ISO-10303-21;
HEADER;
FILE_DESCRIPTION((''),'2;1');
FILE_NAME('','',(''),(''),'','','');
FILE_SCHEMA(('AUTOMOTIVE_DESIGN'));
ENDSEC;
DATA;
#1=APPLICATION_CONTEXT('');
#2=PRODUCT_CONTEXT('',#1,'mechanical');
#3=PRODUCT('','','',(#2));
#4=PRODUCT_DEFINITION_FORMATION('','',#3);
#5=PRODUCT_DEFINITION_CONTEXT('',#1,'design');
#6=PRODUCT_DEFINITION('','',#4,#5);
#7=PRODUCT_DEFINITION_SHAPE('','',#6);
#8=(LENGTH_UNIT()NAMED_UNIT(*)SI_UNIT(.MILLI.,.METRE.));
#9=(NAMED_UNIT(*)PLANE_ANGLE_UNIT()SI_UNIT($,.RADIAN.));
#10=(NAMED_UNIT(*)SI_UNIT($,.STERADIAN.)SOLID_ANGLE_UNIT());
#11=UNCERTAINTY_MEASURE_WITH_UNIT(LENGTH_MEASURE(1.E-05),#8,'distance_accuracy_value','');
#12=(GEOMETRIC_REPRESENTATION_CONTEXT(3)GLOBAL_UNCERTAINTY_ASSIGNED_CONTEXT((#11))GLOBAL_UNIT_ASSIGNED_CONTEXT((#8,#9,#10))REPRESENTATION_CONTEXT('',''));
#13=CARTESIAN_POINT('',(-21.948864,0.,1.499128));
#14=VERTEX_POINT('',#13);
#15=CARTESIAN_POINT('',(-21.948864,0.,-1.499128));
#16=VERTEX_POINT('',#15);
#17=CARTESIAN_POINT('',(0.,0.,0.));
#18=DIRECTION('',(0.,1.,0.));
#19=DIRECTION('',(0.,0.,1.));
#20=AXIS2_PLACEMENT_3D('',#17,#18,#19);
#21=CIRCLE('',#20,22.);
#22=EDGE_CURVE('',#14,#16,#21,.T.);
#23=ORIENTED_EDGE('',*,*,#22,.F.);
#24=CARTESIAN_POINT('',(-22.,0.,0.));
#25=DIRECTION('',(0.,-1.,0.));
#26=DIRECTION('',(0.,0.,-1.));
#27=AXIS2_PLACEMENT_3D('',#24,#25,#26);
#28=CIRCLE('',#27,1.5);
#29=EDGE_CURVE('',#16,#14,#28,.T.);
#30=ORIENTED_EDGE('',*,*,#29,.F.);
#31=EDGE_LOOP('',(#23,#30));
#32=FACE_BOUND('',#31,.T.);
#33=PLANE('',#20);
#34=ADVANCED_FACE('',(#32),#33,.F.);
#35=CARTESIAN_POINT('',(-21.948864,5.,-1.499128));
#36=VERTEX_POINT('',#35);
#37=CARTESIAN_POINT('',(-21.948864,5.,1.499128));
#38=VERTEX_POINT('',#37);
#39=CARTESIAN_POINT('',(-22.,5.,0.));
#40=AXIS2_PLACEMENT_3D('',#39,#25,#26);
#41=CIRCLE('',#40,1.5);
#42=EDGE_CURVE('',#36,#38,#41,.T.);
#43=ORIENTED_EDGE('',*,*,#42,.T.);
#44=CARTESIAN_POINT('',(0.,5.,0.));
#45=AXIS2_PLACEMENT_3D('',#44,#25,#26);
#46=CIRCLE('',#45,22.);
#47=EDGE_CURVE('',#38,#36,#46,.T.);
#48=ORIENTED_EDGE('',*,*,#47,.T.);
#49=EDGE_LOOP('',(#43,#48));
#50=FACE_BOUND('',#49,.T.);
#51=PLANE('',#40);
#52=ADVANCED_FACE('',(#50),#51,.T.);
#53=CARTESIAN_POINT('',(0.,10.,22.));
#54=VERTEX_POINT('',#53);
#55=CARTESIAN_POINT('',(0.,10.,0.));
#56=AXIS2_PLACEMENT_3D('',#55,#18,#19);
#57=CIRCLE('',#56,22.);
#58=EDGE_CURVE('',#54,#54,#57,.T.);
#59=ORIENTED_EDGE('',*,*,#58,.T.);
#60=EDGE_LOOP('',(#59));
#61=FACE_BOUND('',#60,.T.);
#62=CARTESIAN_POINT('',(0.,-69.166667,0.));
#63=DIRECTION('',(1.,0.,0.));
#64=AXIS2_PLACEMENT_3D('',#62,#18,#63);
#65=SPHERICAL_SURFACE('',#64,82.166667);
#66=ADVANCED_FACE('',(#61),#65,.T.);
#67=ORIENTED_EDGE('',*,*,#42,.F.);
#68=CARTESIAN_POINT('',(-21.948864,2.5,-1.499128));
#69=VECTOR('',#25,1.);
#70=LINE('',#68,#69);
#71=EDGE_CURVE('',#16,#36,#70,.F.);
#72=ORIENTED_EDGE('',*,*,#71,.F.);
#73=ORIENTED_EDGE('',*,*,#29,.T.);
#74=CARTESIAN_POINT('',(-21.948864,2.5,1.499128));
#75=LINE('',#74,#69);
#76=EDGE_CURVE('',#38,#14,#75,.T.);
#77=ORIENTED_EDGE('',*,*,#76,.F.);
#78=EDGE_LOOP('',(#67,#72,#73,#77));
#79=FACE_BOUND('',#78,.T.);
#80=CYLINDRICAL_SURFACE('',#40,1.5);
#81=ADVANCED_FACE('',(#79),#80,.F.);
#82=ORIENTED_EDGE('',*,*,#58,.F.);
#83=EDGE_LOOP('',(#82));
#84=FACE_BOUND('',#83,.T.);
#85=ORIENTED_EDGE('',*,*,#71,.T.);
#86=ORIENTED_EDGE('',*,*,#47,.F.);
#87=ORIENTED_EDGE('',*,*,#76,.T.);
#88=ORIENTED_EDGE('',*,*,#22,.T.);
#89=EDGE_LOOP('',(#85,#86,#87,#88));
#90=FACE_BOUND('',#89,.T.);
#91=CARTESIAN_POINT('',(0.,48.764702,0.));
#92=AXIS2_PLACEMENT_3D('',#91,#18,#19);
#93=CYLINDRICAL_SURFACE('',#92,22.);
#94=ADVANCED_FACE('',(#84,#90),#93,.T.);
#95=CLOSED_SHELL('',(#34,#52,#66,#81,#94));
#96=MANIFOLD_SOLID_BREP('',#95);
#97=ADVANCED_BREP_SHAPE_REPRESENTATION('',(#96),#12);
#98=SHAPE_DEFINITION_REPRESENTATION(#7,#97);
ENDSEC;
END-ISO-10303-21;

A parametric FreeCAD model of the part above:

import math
import FreeCAD as App
import Part
import Sketcher
Q = App.Units.Quantity

doc = App.newDocument("Part")
body = doc.addObject("PartDesign::Body", "Body")

sketch1 = body.newObject("Sketcher::SketchObject", "Sketch")
sketch1.AttachmentSupport = (doc.getObject("XY_Plane"), [""])
sketch1.MapMode = "FlatFace"
sketch1.addGeometry([
    Part.LineSegment(App.Vector(0, 13, 0), App.Vector(0, 0, 0)),
    Part.LineSegment(App.Vector(0, 0, 0), App.Vector(22, 0, 0)),
    Part.LineSegment(App.Vector(22, 0, 0), App.Vector(22, 10, 0)),
    Part.ArcOfCircle(Part.Circle(App.Vector(0, -69, 0), App.Vector(0, 0, 1), 82), math.radians(74.47), math.radians(90)),
], False)
sketch1.addConstraint([
    Sketcher.Constraint("Coincident", 0, 2, 1, 1),
    Sketcher.Constraint("Coincident", 1, 2, 2, 1),
    Sketcher.Constraint("Coincident", 2, 2, 3, 1),
    Sketcher.Constraint("Coincident", 3, 2, 0, 1),
    Sketcher.Constraint("Vertical", 0),
    Sketcher.Constraint("Horizontal", 1),
    Sketcher.Constraint("Vertical", 2),
    Sketcher.Constraint("Coincident", 0, 2, -1, 1),
    Sketcher.Constraint("PointOnObject", 3, 3, -2),
    Sketcher.Constraint("DistanceX", 1, 1, 1, 2, Q("22 mm")),
    Sketcher.Constraint("DistanceY", 0, 2, 0, 1, Q("13 mm")),
    Sketcher.Constraint("DistanceY", 2, 1, 2, 2, Q("10 mm")),
])
revolution = body.newObject("PartDesign::Revolution", "Revolution")
revolution.Profile = sketch1
revolution.ReferenceAxis = (sketch1, ["V_Axis"])
revolution.Angle = 360

sketch2 = body.newObject("Sketcher::SketchObject", "Sketch001")
sketch2.AttachmentSupport = (doc.getObject("XZ_Plane"), [""])
sketch2.MapMode = "FlatFace"
sketch2.addGeometry(Part.Circle(App.Vector(-22, 0, 0), App.Vector(0, 0, 1), 1.5), False)
sketch2.addConstraint([
    Sketcher.Constraint("PointOnObject", 0, 3, -1),
    Sketcher.Constraint("Diameter", 0, Q("3 mm")),
    Sketcher.Constraint("DistanceX", 0, 3, -1, 1, Q("22 mm")),
])
pocket1 = body.newObject("PartDesign::Pocket", "Pocket")
pocket1.Profile = sketch2
pocket1.Length = 5

doc.recompute()
